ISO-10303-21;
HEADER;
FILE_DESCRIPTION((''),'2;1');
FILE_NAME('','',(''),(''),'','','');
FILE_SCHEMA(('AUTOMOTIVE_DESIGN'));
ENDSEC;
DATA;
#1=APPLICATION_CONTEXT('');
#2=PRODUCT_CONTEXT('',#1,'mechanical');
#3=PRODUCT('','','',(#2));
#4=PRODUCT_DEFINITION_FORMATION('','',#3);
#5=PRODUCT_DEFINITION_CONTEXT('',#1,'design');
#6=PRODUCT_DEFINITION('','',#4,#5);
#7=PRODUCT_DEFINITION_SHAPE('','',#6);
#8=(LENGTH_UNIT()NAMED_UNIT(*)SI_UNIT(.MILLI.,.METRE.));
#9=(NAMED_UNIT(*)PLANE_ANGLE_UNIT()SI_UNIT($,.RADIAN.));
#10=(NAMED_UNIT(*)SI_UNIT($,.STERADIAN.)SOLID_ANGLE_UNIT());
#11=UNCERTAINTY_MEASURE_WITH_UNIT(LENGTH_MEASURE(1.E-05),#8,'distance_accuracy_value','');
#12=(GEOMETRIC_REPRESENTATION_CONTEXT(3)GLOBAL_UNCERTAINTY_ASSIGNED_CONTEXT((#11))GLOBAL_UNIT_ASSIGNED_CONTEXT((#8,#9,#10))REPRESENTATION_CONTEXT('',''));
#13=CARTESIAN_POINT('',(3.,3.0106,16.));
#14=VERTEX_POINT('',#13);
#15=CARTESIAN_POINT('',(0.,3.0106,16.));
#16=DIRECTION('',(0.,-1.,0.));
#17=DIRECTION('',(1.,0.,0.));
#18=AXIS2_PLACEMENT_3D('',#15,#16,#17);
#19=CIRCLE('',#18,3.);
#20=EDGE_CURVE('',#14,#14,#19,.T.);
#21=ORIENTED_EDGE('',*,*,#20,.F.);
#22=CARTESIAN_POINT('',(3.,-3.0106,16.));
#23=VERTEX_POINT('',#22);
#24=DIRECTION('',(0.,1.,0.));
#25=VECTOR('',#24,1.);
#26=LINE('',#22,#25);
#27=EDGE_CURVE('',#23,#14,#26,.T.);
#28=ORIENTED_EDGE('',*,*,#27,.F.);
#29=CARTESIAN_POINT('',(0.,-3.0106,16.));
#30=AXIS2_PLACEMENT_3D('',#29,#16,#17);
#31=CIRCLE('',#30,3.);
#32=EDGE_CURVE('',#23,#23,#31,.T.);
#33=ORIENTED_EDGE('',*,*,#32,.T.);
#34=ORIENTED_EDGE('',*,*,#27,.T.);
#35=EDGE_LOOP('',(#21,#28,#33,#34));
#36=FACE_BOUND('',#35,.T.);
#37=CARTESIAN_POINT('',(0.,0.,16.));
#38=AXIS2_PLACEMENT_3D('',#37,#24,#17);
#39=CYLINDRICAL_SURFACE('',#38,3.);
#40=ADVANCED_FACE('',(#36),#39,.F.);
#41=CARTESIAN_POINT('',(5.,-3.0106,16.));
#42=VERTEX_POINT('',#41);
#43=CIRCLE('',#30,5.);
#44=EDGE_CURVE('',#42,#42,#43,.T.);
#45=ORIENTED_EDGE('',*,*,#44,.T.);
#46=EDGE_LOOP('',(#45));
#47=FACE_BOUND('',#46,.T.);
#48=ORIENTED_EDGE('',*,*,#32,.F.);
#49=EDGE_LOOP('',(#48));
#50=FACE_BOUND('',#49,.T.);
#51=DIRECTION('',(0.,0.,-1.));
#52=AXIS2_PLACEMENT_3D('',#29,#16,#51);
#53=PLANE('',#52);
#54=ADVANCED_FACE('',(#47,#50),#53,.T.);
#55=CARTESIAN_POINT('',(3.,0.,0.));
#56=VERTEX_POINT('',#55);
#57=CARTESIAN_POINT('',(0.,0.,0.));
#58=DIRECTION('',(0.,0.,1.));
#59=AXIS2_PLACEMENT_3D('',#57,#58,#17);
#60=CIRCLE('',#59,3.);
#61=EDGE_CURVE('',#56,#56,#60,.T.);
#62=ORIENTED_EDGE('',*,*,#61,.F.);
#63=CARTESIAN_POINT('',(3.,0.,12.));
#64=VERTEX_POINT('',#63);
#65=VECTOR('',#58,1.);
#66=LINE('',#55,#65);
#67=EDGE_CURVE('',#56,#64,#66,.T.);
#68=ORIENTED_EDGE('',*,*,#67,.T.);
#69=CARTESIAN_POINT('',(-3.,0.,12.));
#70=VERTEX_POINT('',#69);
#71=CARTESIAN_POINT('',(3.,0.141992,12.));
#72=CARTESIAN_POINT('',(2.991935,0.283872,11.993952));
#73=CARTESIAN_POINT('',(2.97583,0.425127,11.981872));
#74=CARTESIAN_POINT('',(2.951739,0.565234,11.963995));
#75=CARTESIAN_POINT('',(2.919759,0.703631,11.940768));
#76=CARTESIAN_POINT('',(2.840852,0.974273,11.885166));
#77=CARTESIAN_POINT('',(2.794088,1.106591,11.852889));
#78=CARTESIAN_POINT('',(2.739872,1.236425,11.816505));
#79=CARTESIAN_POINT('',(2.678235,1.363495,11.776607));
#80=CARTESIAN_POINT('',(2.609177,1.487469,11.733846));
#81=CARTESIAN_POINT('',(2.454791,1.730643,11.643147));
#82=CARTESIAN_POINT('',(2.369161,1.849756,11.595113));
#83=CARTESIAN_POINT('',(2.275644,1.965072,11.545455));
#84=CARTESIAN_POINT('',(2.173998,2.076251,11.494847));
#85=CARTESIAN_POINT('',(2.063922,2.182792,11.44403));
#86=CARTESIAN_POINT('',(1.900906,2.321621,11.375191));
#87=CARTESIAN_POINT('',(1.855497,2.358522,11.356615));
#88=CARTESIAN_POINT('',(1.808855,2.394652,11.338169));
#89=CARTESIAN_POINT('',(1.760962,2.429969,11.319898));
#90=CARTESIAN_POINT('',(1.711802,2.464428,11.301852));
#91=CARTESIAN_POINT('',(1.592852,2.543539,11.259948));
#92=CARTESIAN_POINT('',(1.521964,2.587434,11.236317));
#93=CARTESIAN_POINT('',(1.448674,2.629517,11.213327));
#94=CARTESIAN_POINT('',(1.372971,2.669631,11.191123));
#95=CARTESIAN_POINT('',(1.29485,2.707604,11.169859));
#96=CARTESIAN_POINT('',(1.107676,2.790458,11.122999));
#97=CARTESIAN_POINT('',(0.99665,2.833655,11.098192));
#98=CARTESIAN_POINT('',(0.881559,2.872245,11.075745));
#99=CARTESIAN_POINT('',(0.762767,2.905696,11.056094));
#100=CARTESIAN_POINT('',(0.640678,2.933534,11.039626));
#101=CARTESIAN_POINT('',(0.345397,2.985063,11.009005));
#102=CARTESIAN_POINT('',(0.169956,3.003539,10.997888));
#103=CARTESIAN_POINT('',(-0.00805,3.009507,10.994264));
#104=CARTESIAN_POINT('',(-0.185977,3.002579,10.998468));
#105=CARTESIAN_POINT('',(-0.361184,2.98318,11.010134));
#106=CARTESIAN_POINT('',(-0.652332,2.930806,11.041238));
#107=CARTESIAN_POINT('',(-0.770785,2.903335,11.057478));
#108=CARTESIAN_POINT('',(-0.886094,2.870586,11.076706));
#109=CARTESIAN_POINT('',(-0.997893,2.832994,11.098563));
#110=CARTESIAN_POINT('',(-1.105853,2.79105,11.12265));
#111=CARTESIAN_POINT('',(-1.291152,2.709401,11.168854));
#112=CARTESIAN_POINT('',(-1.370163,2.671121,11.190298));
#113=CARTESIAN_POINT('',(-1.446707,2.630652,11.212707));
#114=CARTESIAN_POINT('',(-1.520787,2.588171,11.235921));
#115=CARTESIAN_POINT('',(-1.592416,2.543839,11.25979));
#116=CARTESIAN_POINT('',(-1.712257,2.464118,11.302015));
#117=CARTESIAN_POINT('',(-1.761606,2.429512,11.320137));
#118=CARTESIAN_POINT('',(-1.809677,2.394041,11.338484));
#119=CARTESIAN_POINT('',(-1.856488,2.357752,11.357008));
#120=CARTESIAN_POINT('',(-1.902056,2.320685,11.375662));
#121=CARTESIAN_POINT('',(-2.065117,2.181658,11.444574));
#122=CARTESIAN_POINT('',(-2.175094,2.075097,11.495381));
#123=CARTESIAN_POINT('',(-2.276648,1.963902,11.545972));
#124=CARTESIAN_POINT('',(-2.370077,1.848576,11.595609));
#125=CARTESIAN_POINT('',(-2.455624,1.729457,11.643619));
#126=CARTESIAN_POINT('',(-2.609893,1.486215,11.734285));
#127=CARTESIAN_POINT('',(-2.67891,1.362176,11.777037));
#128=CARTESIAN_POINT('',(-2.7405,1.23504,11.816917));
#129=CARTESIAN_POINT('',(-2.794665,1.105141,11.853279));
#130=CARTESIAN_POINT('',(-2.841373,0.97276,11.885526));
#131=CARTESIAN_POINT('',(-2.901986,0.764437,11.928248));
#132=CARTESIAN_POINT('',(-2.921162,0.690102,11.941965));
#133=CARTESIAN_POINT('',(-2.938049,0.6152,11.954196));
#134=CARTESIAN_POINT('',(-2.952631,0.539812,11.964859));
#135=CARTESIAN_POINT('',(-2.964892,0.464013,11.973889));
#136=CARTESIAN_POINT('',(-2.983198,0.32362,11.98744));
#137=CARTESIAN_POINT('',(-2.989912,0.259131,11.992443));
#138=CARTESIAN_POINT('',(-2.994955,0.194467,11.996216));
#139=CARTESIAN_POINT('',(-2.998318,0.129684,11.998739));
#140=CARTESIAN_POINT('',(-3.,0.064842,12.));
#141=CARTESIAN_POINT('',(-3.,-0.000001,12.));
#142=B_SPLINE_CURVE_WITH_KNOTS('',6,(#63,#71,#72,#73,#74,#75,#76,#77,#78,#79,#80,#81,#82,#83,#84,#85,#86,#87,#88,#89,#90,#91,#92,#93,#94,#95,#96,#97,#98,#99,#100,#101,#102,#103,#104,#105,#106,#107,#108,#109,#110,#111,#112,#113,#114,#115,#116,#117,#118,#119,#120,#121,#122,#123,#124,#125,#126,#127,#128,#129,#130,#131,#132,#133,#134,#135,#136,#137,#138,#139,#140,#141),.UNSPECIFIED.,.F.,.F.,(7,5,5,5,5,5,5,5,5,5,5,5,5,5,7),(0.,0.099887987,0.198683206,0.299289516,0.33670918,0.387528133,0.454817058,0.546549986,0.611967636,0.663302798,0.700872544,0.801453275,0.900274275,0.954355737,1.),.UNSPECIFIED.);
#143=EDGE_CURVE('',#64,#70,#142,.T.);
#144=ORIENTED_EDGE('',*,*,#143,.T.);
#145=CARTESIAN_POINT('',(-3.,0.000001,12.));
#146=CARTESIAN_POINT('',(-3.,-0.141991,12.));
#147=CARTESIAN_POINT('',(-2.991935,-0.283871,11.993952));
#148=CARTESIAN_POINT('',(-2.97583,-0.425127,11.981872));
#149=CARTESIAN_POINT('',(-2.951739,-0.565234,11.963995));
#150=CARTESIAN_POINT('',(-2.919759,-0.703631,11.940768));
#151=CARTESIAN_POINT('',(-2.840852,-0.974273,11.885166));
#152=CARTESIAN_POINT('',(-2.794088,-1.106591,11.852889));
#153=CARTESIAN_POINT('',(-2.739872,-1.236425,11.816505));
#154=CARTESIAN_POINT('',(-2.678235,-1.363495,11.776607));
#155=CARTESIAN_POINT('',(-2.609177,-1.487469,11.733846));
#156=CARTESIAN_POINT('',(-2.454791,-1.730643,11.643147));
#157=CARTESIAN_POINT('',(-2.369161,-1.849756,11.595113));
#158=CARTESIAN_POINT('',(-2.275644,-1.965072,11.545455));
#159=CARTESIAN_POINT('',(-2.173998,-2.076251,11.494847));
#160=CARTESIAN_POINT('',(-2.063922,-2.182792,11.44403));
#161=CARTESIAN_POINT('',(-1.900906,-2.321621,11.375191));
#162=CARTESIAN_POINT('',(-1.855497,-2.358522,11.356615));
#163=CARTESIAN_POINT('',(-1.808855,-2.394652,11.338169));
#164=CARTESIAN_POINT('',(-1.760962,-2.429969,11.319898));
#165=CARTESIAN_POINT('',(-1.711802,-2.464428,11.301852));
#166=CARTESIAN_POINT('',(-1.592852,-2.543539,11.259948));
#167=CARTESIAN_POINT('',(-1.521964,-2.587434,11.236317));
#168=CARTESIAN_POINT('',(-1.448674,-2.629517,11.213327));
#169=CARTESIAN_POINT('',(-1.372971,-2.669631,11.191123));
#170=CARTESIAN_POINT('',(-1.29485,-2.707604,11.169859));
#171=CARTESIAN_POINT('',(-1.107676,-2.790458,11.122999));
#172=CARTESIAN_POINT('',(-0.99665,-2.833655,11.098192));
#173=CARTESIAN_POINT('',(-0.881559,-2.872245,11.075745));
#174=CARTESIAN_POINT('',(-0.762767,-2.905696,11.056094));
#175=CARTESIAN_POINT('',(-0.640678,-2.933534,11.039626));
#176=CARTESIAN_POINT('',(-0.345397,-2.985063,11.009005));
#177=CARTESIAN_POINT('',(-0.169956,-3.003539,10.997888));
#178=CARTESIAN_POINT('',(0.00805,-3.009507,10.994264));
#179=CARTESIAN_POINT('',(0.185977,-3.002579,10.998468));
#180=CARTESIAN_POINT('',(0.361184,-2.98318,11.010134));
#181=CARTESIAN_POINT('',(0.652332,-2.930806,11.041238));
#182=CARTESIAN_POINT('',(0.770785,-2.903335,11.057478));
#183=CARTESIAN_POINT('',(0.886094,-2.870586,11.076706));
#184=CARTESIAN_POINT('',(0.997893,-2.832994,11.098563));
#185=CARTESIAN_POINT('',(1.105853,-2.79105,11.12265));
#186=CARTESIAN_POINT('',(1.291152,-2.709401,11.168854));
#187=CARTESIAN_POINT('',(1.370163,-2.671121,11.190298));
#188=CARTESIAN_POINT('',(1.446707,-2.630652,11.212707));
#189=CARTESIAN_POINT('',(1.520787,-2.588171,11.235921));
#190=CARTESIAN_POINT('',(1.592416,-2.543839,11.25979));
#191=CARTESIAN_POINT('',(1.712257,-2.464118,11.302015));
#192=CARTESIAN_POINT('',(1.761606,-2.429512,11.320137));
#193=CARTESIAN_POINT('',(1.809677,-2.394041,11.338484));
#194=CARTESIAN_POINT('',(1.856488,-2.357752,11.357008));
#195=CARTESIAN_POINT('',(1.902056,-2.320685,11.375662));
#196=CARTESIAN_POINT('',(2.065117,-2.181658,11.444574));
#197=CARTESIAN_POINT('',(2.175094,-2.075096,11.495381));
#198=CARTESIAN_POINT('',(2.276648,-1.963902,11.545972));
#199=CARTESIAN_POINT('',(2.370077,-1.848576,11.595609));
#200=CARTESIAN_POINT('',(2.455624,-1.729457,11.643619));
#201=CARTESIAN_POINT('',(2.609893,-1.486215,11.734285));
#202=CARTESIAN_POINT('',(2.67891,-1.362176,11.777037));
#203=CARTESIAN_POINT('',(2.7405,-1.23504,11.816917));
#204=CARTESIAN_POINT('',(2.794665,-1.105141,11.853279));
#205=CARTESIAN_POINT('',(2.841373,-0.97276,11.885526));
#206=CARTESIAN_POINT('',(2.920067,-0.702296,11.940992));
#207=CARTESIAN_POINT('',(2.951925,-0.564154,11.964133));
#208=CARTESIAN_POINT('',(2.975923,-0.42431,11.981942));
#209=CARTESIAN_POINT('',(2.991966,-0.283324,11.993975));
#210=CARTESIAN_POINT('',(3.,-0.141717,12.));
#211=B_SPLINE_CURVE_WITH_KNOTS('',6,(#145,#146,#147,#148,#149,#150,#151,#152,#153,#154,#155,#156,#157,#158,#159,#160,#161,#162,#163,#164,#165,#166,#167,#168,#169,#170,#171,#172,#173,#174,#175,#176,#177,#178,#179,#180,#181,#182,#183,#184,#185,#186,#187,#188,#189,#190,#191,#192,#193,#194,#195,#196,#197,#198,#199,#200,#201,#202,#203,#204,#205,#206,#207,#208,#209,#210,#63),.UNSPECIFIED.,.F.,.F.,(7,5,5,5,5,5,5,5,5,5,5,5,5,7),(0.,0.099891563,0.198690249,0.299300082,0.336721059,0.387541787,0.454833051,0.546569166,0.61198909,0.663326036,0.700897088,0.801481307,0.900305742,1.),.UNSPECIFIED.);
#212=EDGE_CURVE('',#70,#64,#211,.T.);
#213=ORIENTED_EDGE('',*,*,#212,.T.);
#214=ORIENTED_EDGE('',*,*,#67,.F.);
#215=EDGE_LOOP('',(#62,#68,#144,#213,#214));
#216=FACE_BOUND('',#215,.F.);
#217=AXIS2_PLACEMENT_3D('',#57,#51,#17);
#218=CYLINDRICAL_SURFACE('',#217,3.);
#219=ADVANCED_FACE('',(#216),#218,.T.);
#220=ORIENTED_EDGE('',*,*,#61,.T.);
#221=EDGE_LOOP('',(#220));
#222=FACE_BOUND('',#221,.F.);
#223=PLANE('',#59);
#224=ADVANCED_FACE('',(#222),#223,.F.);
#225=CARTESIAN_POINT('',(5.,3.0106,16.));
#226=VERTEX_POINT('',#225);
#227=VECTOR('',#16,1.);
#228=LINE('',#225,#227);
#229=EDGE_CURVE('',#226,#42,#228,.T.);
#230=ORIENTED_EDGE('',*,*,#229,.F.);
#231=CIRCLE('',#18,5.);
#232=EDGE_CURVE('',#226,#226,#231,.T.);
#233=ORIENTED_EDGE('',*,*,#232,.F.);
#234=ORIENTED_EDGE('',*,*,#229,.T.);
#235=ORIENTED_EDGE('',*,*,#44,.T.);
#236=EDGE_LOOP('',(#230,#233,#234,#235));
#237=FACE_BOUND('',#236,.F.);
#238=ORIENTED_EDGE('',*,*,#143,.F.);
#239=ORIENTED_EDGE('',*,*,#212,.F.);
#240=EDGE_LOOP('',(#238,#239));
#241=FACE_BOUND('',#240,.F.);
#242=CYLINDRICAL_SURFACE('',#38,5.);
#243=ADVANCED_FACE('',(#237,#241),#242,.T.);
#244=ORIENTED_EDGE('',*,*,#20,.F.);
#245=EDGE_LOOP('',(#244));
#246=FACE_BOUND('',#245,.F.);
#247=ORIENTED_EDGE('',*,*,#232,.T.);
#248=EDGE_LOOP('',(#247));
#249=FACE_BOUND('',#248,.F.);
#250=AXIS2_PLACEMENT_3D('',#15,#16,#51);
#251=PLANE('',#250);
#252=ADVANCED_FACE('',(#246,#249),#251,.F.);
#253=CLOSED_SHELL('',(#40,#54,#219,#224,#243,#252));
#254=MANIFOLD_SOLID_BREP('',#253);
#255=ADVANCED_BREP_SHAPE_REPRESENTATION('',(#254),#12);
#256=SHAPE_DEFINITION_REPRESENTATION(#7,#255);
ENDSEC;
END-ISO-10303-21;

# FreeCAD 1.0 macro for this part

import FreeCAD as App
import Part
import Sketcher
Q = App.Units.Quantity

doc = App.newDocument("Part")
body = doc.addObject("PartDesign::Body", "Body")

# Sketch on XY plane
sketch1 = body.newObject("Sketcher::SketchObject", "Sketch")
sketch1.AttachmentSupport = (doc.getObject("XY_Plane"), [""])
sketch1.MapMode = "FlatFace"
sketch1.addGeometry(Part.Circle(App.Vector(0, 0, 0), App.Vector(0, 0, 1), 3), False)
sketch1.addConstraint([
    Sketcher.Constraint("Coincident", 0, 3, -1, 1),
    Sketcher.Constraint("Diameter", 0, Q("6 mm")),
])
pad1 = body.newObject("PartDesign::Pad", "Pad")
pad1.Profile = sketch1
pad1.Length = 12

# Sketch on XZ plane
sketch2 = body.newObject("Sketcher::SketchObject", "Sketch001")
sketch2.AttachmentSupport = (doc.getObject("XZ_Plane"), [""])
sketch2.MapMode = "FlatFace"
sketch2.addGeometry([
    Part.Circle(App.Vector(0, 16, 0), App.Vector(0, 0, 1), 5),
    Part.Circle(App.Vector(0, 16, 0), App.Vector(0, 0, 1), 3),
], False)
sketch2.addConstraint([
    Sketcher.Constraint("Coincident", 1, 3, 0, 3),
    Sketcher.Constraint("PointOnObject", 0, 3, -2),
    Sketcher.Constraint("Diameter", 0, Q("10 mm")),
    Sketcher.Constraint("Diameter", 1, Q("6 mm")),
    Sketcher.Constraint("DistanceY", -1, 1, 0, 3, Q("16 mm")),
])
pad2 = body.newObject("PartDesign::Pad", "Pad001")
pad2.Profile = sketch2
pad2.Length = 6.0212
pad2.Midplane = True

doc.recompute()
